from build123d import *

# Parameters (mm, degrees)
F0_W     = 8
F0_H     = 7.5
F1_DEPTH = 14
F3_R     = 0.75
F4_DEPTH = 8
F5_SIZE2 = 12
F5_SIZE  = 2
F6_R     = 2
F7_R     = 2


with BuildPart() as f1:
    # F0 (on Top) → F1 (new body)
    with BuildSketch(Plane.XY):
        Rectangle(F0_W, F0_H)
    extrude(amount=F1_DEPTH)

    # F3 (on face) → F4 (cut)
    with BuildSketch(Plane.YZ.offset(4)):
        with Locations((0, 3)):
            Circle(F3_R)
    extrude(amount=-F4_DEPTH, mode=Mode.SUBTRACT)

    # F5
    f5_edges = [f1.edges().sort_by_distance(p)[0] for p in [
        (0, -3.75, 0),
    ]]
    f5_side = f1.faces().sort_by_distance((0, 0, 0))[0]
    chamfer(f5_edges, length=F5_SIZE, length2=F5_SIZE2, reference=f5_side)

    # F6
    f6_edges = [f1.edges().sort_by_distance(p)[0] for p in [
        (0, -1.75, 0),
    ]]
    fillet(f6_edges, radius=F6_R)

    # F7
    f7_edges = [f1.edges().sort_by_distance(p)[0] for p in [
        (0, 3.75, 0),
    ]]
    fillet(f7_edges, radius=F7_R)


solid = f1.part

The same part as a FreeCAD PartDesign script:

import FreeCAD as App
import Part
import Sketcher
from FreeCAD import Vector


def edges_at(feature, points):
    """Names of the edges that pass closest to the given points."""
    edges = feature.Shape.Edges
    near = lambda p: min(range(len(edges)), key=lambda i: edges[i].distToShape(Part.Vertex(*p))[0])
    return sorted({f"Edge{near(p) + 1}" for p in points})


def add_polygon(sketch, points):
    """Adds a closed chain of lines whose ends are joined by coincident constraints."""
    first, n = sketch.GeometryCount, len(points)
    for a, b in zip(points, points[1:] + points[:1]):
        sketch.addGeometry(Part.LineSegment(App.Vector(*a, 0), App.Vector(*b, 0)), False)
    for i in range(n):
        sketch.addConstraint(Sketcher.Constraint("Coincident", first + i, 2, first + (i + 1) % n, 1))

doc = App.newDocument("Part")
params = doc.addObject("Spreadsheet::Sheet", "Params")
for row, (alias, value) in enumerate([
    ("sketch1_width", "8 mm"),
    ("sketch1_height", "7.5 mm"),
    ("pad1_length", "14 mm"),
    ("sketch2_diameter", "1.5 mm"),
    ("pocket1_length", "8 mm"),
    ("chamfer_size", "2 mm"),
    ("chamfer_size2", "12 mm"),
    ("fillet_radius", "2 mm"),
    ("fillet2_radius", "2 mm"),
], start=1):
    params.set(f"A{row}", alias)
    params.set(f"B{row}", "=" + value)
    params.setAlias(f"B{row}", alias)

body = doc.addObject("PartDesign::Body", "Body")

# Sketch on XY plane
sketch1 = body.newObject("Sketcher::SketchObject", "Sketch")
sketch1.AttachmentSupport = (doc.getObject("XY_Plane"), [""])
sketch1.MapMode = "FlatFace"
add_polygon(sketch1, [(-4, 3.75), (-4, -3.75), (4, -3.75), (4, 3.75)])  # lines 0-3
sketch1.addConstraint([
    Sketcher.Constraint("Vertical", 0),
    Sketcher.Constraint("Horizontal", 1),
    Sketcher.Constraint("Vertical", 2),
    Sketcher.Constraint("Horizontal", 3),
    Sketcher.Constraint("Symmetric", 0, 2, 2, 2, -1, 1),
    Sketcher.Constraint("DistanceX", 1, 1, 1, 2, 8.0),
    Sketcher.Constraint("DistanceY", 0, 2, 0, 1, 7.5),
])
sketch1.setExpression("Constraints[9]", "Params.sketch1_width")
sketch1.setExpression("Constraints[10]", "Params.sketch1_height")
pad1 = body.newObject("PartDesign::Pad", "Pad")
pad1.Profile = sketch1
pad1.setExpression("Length", "Params.pad1_length")

# Sketch on YZ plane
sketch2 = body.newObject("Sketcher::SketchObject", "Sketch001")
sketch2.AttachmentSupport = (doc.getObject("YZ_Plane"), [""])
sketch2.MapMode = "FlatFace"
sketch2.AttachmentOffset = App.Placement(Vector(0, 0, 4), App.Rotation())
sketch2.addGeometry(Part.Circle(Vector(0, 3, 0), Vector(0, 0, 1), 0.75), False)
sketch2.addConstraint([
    Sketcher.Constraint("PointOnObject", 0, 3, -2),
    Sketcher.Constraint("Diameter", 0, 1.5),
    Sketcher.Constraint("DistanceY", -1, 1, 0, 3, 3.0),
])
sketch2.setExpression("Constraints[1]", "Params.sketch2_diameter")
pocket1 = body.newObject("PartDesign::Pocket", "Pocket")
pocket1.Profile = sketch2
pocket1.setExpression("Length", "Params.pocket1_length")
doc.recompute()

chamfer = body.newObject("PartDesign::Chamfer", "Chamfer")
chamfer.Base = (pocket1, edges_at(pocket1, [(0, -3.75, 0)]))
chamfer.ChamferType = "Two distances"
chamfer.setExpression("Size", "Params.chamfer_size")
chamfer.setExpression("Size2", "Params.chamfer_size2")
doc.recompute()

fillet = body.newObject("PartDesign::Fillet", "Fillet")
fillet.Base = (chamfer, edges_at(chamfer, [(0, -1.75, 0)]))
fillet.setExpression("Radius", "Params.fillet_radius")
doc.recompute()

fillet2 = body.newObject("PartDesign::Fillet", "Fillet001")
fillet2.Base = (fillet, edges_at(fillet, [(0, 3.75, 0)]))
fillet2.setExpression("Radius", "Params.fillet2_radius")

doc.recompute()
